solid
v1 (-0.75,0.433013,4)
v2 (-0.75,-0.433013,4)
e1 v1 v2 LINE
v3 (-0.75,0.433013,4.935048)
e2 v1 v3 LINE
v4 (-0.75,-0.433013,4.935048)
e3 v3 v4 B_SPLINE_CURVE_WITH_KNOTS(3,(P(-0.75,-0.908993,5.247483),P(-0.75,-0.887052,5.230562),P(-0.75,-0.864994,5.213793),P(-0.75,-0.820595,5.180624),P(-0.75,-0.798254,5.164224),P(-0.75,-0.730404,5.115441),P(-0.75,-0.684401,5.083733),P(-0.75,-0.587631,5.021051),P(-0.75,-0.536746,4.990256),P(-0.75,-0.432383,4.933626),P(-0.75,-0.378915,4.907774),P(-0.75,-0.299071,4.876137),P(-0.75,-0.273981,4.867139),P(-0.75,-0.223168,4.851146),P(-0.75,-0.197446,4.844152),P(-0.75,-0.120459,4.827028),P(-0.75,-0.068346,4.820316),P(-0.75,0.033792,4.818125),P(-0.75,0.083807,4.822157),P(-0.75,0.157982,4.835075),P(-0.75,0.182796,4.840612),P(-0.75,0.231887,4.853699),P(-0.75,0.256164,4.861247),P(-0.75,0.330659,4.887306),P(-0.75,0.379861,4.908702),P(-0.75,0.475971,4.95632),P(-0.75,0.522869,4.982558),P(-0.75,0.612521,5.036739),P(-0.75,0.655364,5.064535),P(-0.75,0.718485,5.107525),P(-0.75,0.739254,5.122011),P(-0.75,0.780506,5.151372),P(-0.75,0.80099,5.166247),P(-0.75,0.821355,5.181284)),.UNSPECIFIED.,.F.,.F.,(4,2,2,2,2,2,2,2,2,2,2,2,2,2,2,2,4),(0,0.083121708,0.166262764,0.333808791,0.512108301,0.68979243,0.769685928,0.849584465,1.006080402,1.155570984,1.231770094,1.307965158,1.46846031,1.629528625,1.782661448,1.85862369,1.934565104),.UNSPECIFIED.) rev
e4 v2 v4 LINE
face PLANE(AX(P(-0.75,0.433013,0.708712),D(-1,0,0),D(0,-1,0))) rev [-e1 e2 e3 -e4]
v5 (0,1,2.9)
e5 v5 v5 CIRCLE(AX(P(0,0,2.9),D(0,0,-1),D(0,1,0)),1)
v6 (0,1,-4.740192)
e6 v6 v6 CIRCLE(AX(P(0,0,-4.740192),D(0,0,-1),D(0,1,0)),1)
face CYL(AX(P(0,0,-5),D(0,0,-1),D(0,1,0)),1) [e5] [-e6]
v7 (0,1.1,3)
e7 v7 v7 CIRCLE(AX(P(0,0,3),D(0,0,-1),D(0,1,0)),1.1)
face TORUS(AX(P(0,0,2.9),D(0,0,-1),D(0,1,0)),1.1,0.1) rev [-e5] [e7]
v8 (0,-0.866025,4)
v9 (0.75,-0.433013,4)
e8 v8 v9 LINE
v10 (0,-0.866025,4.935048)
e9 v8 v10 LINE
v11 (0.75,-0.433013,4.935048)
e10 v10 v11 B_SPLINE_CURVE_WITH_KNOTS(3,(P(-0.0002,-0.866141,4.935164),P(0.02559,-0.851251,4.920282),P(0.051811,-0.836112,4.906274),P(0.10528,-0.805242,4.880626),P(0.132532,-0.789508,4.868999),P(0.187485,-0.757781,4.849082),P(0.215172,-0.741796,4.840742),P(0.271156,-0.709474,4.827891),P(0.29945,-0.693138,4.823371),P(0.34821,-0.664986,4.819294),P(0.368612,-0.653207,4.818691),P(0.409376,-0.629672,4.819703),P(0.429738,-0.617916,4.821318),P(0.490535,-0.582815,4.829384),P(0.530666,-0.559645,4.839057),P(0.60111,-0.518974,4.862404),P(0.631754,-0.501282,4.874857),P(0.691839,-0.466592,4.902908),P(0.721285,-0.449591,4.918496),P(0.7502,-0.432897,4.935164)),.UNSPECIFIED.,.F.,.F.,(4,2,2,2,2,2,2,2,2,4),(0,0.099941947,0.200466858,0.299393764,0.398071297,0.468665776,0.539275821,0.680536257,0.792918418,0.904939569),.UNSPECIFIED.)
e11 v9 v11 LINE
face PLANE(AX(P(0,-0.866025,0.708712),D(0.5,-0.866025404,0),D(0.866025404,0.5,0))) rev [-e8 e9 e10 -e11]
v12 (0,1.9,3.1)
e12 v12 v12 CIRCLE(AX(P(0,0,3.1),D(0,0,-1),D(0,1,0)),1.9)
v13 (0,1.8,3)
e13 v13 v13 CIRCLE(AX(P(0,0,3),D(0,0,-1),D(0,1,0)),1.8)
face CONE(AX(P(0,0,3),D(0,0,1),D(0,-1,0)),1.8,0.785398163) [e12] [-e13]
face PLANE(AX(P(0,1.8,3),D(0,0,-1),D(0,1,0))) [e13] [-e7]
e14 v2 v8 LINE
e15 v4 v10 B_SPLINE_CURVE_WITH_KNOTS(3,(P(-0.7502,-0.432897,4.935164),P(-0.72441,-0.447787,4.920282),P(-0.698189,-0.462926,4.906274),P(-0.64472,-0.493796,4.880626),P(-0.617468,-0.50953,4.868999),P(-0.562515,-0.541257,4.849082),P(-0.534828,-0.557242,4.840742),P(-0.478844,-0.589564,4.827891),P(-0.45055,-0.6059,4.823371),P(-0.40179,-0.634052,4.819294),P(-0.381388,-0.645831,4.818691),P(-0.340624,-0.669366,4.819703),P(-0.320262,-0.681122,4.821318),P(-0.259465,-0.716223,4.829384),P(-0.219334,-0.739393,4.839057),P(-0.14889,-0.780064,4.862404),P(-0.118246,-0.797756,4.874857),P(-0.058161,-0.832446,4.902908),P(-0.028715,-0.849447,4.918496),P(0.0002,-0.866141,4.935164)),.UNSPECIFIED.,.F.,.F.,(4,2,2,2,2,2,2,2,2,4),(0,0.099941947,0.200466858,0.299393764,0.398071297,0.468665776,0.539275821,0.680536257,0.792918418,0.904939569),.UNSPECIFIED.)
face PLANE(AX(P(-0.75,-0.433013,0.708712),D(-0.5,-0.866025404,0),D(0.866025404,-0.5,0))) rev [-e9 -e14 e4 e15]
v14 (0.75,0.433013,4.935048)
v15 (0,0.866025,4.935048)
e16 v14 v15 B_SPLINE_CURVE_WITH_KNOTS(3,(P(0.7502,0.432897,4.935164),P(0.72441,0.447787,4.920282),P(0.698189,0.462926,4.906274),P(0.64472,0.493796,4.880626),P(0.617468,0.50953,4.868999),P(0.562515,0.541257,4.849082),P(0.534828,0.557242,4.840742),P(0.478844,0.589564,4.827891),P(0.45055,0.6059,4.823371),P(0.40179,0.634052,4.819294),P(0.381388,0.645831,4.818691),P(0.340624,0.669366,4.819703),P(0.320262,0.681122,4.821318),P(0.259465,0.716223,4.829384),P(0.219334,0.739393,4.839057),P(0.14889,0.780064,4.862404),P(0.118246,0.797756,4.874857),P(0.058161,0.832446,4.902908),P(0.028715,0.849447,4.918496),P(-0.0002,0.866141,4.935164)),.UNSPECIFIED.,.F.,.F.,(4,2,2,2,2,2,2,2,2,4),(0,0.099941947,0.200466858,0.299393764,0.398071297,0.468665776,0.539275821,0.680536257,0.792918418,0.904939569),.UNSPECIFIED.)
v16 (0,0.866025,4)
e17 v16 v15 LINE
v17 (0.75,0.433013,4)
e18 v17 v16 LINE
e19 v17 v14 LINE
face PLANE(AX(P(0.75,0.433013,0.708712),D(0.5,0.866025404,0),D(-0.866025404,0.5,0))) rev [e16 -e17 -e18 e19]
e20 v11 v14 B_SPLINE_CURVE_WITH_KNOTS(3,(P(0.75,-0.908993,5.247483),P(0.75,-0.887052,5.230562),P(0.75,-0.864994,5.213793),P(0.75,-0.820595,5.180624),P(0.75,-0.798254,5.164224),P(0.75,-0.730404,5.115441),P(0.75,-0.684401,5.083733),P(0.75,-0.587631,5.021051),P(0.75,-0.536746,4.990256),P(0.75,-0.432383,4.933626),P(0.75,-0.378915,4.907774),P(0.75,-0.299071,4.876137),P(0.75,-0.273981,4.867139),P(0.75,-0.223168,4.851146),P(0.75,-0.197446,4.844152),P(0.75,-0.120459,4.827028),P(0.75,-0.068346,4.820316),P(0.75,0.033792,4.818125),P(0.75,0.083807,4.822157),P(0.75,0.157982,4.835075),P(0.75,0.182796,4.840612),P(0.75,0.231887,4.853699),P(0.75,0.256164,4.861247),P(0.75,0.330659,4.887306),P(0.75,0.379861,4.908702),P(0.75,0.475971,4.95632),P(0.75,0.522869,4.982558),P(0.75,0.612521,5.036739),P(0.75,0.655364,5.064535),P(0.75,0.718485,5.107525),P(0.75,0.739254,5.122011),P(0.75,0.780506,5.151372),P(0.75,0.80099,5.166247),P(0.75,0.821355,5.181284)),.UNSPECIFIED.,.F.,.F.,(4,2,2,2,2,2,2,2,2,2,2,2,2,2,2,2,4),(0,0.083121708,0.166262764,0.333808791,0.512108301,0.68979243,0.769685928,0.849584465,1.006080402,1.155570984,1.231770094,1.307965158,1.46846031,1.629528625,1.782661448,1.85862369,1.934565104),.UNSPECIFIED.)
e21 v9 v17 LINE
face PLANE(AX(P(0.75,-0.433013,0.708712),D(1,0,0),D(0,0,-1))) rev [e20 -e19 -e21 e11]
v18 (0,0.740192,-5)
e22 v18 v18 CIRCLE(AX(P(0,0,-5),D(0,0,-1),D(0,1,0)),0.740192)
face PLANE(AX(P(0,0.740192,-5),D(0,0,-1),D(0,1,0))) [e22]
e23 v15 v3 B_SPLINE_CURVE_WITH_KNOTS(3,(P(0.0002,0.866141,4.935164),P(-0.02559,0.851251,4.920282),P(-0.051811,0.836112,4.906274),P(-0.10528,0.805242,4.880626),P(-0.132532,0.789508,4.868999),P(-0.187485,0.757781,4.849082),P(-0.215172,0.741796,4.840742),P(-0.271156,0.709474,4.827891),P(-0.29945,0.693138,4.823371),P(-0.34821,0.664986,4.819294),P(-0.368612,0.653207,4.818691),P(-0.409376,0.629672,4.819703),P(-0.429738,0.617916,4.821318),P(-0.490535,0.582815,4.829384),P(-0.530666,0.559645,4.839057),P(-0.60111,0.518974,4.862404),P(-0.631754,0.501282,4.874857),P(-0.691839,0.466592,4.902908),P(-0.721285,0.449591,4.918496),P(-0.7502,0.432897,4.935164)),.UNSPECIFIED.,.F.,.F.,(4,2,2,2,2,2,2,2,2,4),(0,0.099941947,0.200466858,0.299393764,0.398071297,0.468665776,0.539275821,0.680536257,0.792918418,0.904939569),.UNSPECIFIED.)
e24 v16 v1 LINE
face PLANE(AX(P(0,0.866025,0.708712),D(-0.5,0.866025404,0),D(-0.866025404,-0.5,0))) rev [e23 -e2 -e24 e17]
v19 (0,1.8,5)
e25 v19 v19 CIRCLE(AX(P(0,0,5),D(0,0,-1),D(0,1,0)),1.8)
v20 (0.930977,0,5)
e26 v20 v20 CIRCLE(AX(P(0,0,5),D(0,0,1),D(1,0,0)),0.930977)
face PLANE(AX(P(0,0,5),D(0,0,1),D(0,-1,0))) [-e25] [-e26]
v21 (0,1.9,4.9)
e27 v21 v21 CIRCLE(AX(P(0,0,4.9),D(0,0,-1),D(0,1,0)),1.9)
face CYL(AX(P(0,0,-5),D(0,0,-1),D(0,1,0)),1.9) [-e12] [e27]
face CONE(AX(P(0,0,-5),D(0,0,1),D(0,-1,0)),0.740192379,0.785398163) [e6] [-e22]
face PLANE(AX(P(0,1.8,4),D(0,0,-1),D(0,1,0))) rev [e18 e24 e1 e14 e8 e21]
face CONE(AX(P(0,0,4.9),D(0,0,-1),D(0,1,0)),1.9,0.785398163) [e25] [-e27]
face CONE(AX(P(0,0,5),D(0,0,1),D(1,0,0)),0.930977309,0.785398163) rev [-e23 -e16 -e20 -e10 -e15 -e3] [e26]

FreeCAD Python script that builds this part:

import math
import FreeCAD as App
import Part
import Sketcher
Q = App.Units.Quantity


def faces_at(feature, points):
    """Names of the faces that lie closest to the given points."""
    faces = feature.Shape.Faces
    near = lambda p: min(range(len(faces)), key=lambda i: faces[i].distToShape(Part.Vertex(*p))[0])
    return sorted({f"Face{near(p) + 1}" for p in points})


def add_polygon(sketch, points):
    """Adds a closed chain of lines whose ends are joined by coincident constraints."""
    first, n = sketch.GeometryCount, len(points)
    for a, b in zip(points, points[1:] + points[:1]):
        sketch.addGeometry(Part.LineSegment(App.Vector(*a, 0), App.Vector(*b, 0)), False)
    for i in range(n):
        sketch.addConstraint(Sketcher.Constraint("Coincident", first + i, 2, first + (i + 1) % n, 1))

doc = App.newDocument("Part")
body = doc.addObject("PartDesign::Body", "Body")

sketch1 = doc.addObject("Sketcher::SketchObject", "Sketch")
body.addObject(sketch1)
sketch1.AttachmentSupport = (doc.YZ_Plane, [""])
sketch1.MapMode = "FlatFace"
sketch1.addGeometry([
    Part.LineSegment(App.Vector(1.8, 5, 0), App.Vector(0, 5, 0)),
    Part.LineSegment(App.Vector(0, 5, 0), App.Vector(0, -5, 0)),
    Part.LineSegment(App.Vector(0, -5, 0), App.Vector(0.74, -5, 0)),
    Part.LineSegment(App.Vector(0.74, -5, 0), App.Vector(1, -4.74, 0)),
    Part.LineSegment(App.Vector(1, -4.74, 0), App.Vector(1, 2.9, 0)),
    Part.ArcOfCircle(Part.Circle(App.Vector(1.1, 2.9, 0), App.Vector(0, 0, 1), 0.1), math.radians(90), math.radians(180)),
    Part.LineSegment(App.Vector(1.1, 3, 0), App.Vector(1.8, 3, 0)),
    Part.LineSegment(App.Vector(1.8, 3, 0), App.Vector(1.9, 3.1, 0)),
    Part.LineSegment(App.Vector(1.9, 3.1, 0), App.Vector(1.9, 4.9, 0)),
    Part.LineSegment(App.Vector(1.9, 4.9, 0), App.Vector(1.8, 5, 0)),
], False)
sketch1.addConstraint([
    Sketcher.Constraint("Coincident", 0, 2, 1, 1),
    Sketcher.Constraint("Coincident", 1, 2, 2, 1),
    Sketcher.Constraint("Coincident", 2, 2, 3, 1),
    Sketcher.Constraint("Coincident", 3, 2, 4, 1),
    Sketcher.Constraint("Tangent", 4, 2, 5, 2),
    Sketcher.Constraint("Tangent", 5, 1, 6, 1),
    Sketcher.Constraint("Coincident", 6, 2, 7, 1),
    Sketcher.Constraint("Coincident", 7, 2, 8, 1),
    Sketcher.Constraint("Coincident", 8, 2, 9, 1),
    Sketcher.Constraint("Coincident", 9, 2, 0, 1),
    Sketcher.Constraint("Horizontal", 0),
    Sketcher.Constraint("Vertical", 1),
    Sketcher.Constraint("Horizontal", 2),
    Sketcher.Constraint("Vertical", 4),
    Sketcher.Constraint("Horizontal", 6),
    Sketcher.Constraint("Vertical", 8),
    Sketcher.Constraint("Symmetric", 0, 2, 1, 2, -1, 1),
    Sketcher.Constraint("Parallel", 3, 7),
    Sketcher.Constraint("Perpendicular", 7, 9),
    Sketcher.Constraint("Vertical", 6, 2, 9, 2),
    Sketcher.Constraint("Equal", 0, 8),
    Sketcher.Constraint("Equal", 7, 9),
    Sketcher.Constraint("Radius", 5, 0.1),
    Sketcher.Constraint("DistanceY", 1, 2, 1, 1, 10.0),
    Sketcher.Constraint("DistanceX", 0, 2, 0, 1, 1.8),
    Sketcher.Constraint("DistanceX", 6, 1, 6, 2, 0.7),
    Sketcher.Constraint("DistanceY", -1, 1, 5, 1, 3.0),
    Sketcher.Constraint("DistanceX", 2, 1, 2, 2, 0.740192),
])
revolution = doc.addObject("PartDesign::Revolution", "Revolution")
body.addObject(revolution)
revolution.Profile = sketch1
revolution.ReferenceAxis = (sketch1, ["V_Axis"])
revolution.Angle = 360

sketch2 = doc.addObject("Sketcher::SketchObject", "Sketch001")
body.addObject(sketch2)
sketch2.AttachmentSupport = (doc.XY_Plane, [""])
sketch2.MapMode = "FlatFace"
sketch2.AttachmentOffset = App.Placement(App.Vector(0, 0, 5), App.Rotation())
add_polygon(sketch2, [(0.8, -0.4), (0.8, 0.4), (0, 0.9), (-0.8, 0.4), (-0.8, -0.4), (0, -0.9)])
sketch2.addConstraint([
    Sketcher.Constraint("Vertical", 0),
    Sketcher.Constraint("Vertical", 3),
    Sketcher.Constraint("Symmetric", 0, 2, 3, 2, -1, 1),
    Sketcher.Constraint("Symmetric", 1, 2, 4, 2, -1, 1),
    Sketcher.Constraint("PointOnObject", 1, 2, -2),
    Sketcher.Constraint("Parallel", 2, 5),
    Sketcher.Constraint("Horizontal", 0, 2, 2, 2),
    Sketcher.Constraint("Angle", 1, Q("150 deg")),
    Sketcher.Constraint("DistanceX", 2, 2, 0, 2, 1.5),
    Sketcher.Constraint("DistanceY", 0, 1, 0, 2, 0.866025),
])
pocket1 = doc.addObject("PartDesign::Pocket", "Pocket")
body.addObject(pocket1)
pocket1.Profile = sketch2
pocket1.Length = 1
body2 = doc.addObject("PartDesign::Body", "Body001")

sketch3 = doc.addObject("Sketcher::SketchObject", "Sketch002")
body2.addObject(sketch3)
sketch3.AttachmentSupport = (doc.getObject("XY_Plane001"), [""])
sketch3.MapMode = "FlatFace"
sketch3.AttachmentOffset = App.Placement(App.Vector(0, 0, 5), App.Rotation())
sketch3.addGeometry(Part.Circle(App.Vector(0, 0, 0), App.Vector(0, 0, 1), 0.9), False)
sketch3.addConstraint([
    Sketcher.Constraint("Coincident", 0, 3, -1, 1),
    Sketcher.Constraint("Diameter", 0, 1.861955),
])
pad1 = doc.addObject("PartDesign::Pad", "Pad")
body2.addObject(pad1)
pad1.Profile = sketch3
pad1.Length = 1
pad1.Reversed = True
doc.recompute()

datumplane = doc.addObject("PartDesign::Plane", "DatumPlane")
body2.addObject(datumplane)
datumplane.AttachmentSupport = (doc.getObject("XY_Plane001"), [""])
datumplane.MapMode = "FlatFace"
datumplane.AttachmentOffset = App.Placement(App.Vector(0, 0, 5), App.Rotation())
draft = doc.addObject("PartDesign::Draft", "Draft")
body2.addObject(draft)
draft.Base = (pad1, faces_at(pad1, [(-0.931, 0, 4.5)]))
draft.NeutralPlane = (datumplane, [""])
draft.Angle = 45
draft.Reversed = True
doc.recompute()

boolean = doc.addObject("PartDesign::Boolean", "Boolean")
body.addObject(boolean)
boolean.Type = "Cut"
boolean.addObjects([body2])

doc.recompute()
